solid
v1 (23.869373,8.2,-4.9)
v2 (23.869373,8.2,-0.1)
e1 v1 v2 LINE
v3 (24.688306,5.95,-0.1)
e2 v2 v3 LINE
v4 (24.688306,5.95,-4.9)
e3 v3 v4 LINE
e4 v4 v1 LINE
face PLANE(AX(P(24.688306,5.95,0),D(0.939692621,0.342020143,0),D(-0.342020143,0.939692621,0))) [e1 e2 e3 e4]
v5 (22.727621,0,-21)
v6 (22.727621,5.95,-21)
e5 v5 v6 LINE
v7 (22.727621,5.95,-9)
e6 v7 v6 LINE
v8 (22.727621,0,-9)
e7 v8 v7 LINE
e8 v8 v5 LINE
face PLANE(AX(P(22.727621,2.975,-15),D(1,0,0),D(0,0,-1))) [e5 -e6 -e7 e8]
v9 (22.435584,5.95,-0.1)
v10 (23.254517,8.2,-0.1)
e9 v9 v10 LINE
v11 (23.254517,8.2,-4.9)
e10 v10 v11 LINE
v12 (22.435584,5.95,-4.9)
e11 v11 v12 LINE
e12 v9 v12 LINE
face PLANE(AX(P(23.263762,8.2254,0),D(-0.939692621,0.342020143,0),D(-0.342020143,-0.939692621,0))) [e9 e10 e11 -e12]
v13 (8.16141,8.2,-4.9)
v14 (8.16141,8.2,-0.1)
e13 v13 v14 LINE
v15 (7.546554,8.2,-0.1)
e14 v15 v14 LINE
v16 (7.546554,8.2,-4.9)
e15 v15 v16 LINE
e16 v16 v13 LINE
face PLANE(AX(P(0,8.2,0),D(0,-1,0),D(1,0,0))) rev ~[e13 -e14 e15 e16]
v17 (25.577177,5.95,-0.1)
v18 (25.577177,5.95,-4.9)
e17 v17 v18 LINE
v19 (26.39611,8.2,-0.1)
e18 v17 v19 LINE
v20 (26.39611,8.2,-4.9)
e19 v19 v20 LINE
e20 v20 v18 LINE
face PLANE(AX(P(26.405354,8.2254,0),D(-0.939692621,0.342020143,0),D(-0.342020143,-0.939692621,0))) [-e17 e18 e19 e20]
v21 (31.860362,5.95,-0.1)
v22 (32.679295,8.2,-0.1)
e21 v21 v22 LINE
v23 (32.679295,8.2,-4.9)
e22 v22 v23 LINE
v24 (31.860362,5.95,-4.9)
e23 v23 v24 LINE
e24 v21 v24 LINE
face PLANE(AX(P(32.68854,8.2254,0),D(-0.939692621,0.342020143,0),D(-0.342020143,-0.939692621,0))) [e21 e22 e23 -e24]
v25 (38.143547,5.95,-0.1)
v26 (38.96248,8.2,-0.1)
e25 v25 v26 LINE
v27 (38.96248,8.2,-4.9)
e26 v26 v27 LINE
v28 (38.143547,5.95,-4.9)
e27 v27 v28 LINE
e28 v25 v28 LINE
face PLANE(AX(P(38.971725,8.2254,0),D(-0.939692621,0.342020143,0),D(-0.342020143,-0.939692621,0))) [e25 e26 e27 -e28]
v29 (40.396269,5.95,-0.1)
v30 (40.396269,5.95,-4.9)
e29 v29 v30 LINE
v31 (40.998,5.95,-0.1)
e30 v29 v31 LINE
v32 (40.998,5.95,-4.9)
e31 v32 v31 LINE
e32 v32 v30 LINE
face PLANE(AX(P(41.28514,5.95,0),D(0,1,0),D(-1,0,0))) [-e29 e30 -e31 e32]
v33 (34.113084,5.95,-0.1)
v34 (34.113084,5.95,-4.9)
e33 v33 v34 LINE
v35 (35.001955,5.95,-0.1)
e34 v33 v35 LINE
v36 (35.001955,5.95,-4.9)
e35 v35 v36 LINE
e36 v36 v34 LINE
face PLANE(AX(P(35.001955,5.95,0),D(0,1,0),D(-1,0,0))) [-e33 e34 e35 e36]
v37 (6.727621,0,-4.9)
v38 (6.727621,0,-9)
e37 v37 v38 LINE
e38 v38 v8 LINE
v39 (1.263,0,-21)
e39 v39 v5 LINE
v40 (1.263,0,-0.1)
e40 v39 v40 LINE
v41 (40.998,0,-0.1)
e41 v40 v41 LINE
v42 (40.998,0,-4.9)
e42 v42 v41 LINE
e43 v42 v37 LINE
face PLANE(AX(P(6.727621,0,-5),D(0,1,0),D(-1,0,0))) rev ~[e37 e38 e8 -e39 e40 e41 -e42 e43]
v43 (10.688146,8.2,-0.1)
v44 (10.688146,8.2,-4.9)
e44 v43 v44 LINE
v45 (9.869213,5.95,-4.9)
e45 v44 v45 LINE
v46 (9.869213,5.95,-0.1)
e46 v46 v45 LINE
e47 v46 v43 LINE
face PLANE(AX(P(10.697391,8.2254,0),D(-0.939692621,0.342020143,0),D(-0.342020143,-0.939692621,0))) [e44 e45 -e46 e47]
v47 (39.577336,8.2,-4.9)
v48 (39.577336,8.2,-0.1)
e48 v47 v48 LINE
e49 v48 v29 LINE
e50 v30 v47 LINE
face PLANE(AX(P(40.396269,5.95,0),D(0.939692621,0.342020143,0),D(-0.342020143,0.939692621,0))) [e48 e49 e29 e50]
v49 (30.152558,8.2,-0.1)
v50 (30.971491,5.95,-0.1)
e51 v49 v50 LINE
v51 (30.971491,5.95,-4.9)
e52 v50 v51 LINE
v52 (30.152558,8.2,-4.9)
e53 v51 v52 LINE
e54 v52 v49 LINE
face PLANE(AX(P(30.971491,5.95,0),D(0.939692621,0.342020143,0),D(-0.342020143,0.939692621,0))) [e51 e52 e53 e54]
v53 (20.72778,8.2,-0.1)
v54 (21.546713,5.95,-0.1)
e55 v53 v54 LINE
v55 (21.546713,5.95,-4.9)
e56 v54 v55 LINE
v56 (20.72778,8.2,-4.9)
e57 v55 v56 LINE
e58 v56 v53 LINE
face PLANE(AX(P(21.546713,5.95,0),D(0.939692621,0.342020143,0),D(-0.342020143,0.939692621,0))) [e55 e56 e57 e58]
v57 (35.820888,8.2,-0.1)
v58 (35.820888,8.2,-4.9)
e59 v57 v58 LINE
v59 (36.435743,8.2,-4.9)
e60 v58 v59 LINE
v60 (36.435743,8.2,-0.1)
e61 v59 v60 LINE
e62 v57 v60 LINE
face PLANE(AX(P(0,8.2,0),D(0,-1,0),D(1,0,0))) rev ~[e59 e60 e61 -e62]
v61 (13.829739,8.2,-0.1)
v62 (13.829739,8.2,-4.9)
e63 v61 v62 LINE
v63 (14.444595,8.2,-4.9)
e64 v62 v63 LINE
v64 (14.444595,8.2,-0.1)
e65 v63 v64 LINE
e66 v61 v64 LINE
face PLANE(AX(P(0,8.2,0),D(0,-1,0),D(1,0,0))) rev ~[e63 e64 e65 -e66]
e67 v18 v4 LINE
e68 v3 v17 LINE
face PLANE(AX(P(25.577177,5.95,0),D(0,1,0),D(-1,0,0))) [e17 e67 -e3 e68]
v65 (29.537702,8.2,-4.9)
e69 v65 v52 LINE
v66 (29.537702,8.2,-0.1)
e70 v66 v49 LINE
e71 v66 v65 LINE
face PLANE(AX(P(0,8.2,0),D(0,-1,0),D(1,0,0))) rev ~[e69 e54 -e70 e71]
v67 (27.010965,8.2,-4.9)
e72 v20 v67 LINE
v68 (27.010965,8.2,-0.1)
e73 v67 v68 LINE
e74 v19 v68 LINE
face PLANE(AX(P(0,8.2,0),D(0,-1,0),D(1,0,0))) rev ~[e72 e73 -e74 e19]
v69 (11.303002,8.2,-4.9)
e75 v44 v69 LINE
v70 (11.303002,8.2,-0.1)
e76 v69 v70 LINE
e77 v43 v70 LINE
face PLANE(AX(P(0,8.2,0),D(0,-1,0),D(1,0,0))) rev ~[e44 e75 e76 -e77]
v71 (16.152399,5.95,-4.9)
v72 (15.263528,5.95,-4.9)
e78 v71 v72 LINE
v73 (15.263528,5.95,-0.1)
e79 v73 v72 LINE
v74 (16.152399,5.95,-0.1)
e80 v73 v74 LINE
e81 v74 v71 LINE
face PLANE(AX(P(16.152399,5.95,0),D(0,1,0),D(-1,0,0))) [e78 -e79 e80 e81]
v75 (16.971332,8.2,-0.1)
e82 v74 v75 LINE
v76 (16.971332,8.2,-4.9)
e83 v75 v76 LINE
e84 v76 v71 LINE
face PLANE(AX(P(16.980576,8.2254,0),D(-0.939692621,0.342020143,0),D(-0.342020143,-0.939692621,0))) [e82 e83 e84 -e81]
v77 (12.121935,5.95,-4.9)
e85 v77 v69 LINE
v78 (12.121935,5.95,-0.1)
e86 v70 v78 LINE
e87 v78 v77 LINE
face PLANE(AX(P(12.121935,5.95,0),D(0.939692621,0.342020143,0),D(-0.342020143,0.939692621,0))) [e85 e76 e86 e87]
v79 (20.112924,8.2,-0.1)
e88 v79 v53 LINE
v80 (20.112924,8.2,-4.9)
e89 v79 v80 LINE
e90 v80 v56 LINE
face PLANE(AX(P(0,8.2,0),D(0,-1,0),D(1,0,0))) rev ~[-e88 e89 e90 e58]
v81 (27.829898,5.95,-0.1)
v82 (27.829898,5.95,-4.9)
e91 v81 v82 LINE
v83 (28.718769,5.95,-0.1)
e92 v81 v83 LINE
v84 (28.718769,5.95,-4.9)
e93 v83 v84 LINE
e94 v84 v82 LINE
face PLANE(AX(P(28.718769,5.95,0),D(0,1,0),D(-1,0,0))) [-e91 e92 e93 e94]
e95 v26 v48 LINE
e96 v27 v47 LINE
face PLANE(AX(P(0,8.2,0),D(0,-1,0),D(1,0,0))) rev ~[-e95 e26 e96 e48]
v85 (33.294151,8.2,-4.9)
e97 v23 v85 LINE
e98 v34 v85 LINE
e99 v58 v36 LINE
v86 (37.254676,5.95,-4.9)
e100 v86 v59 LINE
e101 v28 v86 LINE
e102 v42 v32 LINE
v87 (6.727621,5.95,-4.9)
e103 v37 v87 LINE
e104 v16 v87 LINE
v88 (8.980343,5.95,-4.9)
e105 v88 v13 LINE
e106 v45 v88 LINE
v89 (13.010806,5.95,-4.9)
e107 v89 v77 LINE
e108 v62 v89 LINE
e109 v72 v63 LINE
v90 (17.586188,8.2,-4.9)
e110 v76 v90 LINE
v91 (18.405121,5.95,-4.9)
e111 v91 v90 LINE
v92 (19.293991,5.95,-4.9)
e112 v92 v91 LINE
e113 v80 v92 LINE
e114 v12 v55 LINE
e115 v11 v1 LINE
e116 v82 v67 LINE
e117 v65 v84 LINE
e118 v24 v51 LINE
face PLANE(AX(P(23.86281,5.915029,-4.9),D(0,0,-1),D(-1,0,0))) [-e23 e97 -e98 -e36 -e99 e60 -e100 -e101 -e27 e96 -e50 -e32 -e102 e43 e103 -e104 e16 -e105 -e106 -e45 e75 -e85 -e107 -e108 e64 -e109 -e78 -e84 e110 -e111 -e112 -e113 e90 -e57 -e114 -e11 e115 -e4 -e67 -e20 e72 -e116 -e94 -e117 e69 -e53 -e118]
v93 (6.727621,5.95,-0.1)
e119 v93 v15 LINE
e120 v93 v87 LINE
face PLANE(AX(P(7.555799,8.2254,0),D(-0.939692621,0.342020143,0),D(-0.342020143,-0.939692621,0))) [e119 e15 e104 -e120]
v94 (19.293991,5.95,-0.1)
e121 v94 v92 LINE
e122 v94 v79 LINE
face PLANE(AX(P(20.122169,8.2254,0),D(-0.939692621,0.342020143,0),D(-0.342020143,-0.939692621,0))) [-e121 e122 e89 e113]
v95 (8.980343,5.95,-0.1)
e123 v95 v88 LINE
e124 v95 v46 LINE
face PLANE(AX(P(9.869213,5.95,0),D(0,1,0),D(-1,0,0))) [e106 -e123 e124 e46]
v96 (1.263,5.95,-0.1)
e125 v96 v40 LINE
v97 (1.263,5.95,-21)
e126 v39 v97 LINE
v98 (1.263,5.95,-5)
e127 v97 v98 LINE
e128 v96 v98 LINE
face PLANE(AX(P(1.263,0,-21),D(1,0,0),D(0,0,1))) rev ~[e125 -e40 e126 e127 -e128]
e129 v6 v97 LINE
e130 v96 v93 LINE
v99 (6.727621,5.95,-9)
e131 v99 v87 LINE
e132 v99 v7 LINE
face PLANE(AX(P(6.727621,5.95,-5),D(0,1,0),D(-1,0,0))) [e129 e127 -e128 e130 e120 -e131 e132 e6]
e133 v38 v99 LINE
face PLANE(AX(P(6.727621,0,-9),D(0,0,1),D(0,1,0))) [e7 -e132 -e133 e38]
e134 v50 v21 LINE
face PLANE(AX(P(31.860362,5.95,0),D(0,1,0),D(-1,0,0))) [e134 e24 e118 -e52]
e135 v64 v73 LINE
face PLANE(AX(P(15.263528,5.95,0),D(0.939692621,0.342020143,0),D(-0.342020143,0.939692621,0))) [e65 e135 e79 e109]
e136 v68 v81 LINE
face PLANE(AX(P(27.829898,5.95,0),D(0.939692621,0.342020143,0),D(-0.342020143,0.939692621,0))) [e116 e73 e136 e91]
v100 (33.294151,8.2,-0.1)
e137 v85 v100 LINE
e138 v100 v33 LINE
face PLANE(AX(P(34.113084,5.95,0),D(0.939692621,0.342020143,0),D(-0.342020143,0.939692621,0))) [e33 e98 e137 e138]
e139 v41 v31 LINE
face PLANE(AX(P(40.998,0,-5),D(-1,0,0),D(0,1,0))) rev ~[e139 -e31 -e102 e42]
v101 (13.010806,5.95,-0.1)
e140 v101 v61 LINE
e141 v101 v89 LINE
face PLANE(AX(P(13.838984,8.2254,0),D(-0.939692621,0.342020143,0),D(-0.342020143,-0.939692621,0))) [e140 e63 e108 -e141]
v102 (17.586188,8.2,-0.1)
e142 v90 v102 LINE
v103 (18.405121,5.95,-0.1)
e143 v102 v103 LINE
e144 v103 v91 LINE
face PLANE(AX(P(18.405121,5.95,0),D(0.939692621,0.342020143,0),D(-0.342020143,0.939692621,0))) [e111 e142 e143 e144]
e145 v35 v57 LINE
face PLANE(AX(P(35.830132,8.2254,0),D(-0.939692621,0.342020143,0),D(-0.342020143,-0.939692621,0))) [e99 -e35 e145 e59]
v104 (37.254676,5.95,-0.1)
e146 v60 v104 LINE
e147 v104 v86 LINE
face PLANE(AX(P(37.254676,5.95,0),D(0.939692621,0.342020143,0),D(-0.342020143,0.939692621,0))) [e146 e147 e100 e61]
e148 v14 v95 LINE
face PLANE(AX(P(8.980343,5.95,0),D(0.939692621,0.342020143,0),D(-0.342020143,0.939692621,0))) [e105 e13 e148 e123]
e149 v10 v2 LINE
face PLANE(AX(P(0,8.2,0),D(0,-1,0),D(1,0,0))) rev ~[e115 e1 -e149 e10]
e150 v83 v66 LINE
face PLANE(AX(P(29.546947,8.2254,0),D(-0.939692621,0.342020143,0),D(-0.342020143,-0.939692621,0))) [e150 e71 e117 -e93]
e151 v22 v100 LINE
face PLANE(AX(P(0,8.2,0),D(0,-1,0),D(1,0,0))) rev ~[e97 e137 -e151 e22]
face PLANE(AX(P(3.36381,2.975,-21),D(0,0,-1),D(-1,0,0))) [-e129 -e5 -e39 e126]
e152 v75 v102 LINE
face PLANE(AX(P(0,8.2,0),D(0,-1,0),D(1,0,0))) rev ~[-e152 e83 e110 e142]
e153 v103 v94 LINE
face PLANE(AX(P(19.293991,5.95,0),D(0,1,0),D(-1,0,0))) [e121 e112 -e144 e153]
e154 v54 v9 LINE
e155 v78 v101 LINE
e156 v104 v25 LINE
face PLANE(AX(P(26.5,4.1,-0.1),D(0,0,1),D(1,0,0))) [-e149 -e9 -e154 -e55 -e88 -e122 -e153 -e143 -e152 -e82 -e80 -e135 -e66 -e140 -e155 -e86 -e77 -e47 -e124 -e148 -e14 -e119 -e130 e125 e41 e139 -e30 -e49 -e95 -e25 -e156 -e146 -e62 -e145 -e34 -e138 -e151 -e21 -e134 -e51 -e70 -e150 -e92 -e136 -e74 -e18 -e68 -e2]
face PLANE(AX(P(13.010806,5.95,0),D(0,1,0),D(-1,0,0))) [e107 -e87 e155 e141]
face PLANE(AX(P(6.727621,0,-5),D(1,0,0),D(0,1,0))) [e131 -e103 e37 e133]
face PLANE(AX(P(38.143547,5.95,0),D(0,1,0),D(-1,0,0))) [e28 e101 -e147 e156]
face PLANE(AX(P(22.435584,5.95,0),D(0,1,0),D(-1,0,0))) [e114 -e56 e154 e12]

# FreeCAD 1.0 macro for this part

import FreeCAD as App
import Part
import Sketcher
from FreeCAD import Vector
Q = App.Units.Quantity


def add_polygon(sketch, points):
    """Adds a closed chain of lines whose ends are joined by coincident constraints."""
    first, n = sketch.GeometryCount, len(points)
    for a, b in zip(points, points[1:] + points[:1]):
        sketch.addGeometry(Part.LineSegment(App.Vector(*a, 0), App.Vector(*b, 0)), False)
    for i in range(n):
        sketch.addConstraint(Sketcher.Constraint("Coincident", first + i, 2, first + (i + 1) % n, 1))

doc = App.newDocument("Part")
body = doc.addObject("PartDesign::Body", "Body")

# Sketch on XY plane
sketch1 = body.newObject("Sketcher::SketchObject", "Sketch")
sketch1.AttachmentSupport = (doc.getObject("XY_Plane"), [""])
sketch1.MapMode = "FlatFace"
add_polygon(sketch1, [(0, 8.2), (0, 0), (53, 0), (53, 8.2)])  # lines 0-3
sketch1.addConstraint(Sketcher.Constraint("Vertical", 0))
sketch1.addConstraint(Sketcher.Constraint("Horizontal", 1))
sketch1.addConstraint(Sketcher.Constraint("Vertical", 2))
sketch1.addConstraint(Sketcher.Constraint("Horizontal", 3))
sketch1.addConstraint(Sketcher.Constraint("Coincident", 0, 2, -1, 1))
sketch1.addConstraint(Sketcher.Constraint("DistanceX", 1, 1, 1, 2, Q("53 mm")))
sketch1.addConstraint(Sketcher.Constraint("DistanceY", 0, 2, 0, 1, Q("8.2 mm")))
pad1 = body.newObject("PartDesign::Pad", "Pad")
pad1.Profile = sketch1
pad1.Length = 5
pad1.Reversed = True

# Sketch on XY plane
sketch2 = body.newObject("Sketcher::SketchObject", "Sketch001")
sketch2.AttachmentSupport = (doc.getObject("XY_Plane"), [""])
sketch2.MapMode = "FlatFace"
add_polygon(sketch2, [(-0.444435, 5.95), (0.444435, 5.95), (1.272613, 8.2254), (-1.272613, 8.2254)])  # lines 0-3
sketch2.addConstraint(Sketcher.Constraint("Horizontal", 0))
sketch2.addConstraint(Sketcher.Constraint("Horizontal", 2))
sketch2.addConstraint(Sketcher.Constraint("Equal", 1, 3))
sketch2.addConstraint(Sketcher.Constraint("Angle", 1, Q("70 deg")))
sketch2.addConstraint(Sketcher.Constraint("DistanceY", -1, 1, 0, 2, Q("5.95 mm")))
sketch2.addConstraint(Sketcher.Constraint("DistanceX", 0, 1, 0, 2, Q("0.888871 mm")))
sketch2.addConstraint(Sketcher.Constraint("DistanceY", -1, 1, 1, 2, Q("8.2254 mm")))
sketch2.addConstraint(Sketcher.Constraint("DistanceX", -1, 1, 0, 2, Q("0.444435 mm")))
pocket1 = body.newObject("PartDesign::Pocket", "Pocket")
pocket1.Profile = sketch2
pocket1.Type = "ThroughAll"
doc.recompute()

linearpattern = body.newObject("PartDesign::LinearPattern", "LinearPattern")
linearpattern.Originals = [pocket1]
linearpattern.Direction = (doc.getObject("X_Axis"), [""])
linearpattern.Mode = "offset"
linearpattern.Offset = 3.141593
linearpattern.Occurrences = 18
body.Tip = linearpattern

# Sketch on XY plane
sketch3 = body.newObject("Sketcher::SketchObject", "Sketch002")
sketch3.AttachmentSupport = (doc.getObject("XY_Plane"), [""])
sketch3.MapMode = "FlatFace"
sketch3.AttachmentOffset = App.Placement(Vector(0, 0, -5), App.Rotation())
add_polygon(sketch3, [(6.727621, 5.95), (6.727621, 0), (0, 0), (0, 5.95)])  # lines 0-3
sketch3.addConstraint(Sketcher.Constraint("Vertical", 0))
sketch3.addConstraint(Sketcher.Constraint("Horizontal", 1))
sketch3.addConstraint(Sketcher.Constraint("Vertical", 2))
sketch3.addConstraint(Sketcher.Constraint("Horizontal", 3))
sketch3.addConstraint(Sketcher.Constraint("Coincident", 1, 2, -1, 1))
sketch3.addConstraint(Sketcher.Constraint("DistanceY", 0, 2, 0, 1, Q("5.95 mm")))
sketch3.addConstraint(Sketcher.Constraint("DistanceX", 1, 2, 1, 1, Q("6.727621 mm")))
pad2 = body.newObject("PartDesign::Pad", "Pad001")
pad2.Profile = sketch3
pad2.Length = 20
pad2.Reversed = True

# Sketch on YZ plane
sketch4 = body.newObject("Sketcher::SketchObject", "Sketch003")
sketch4.AttachmentSupport = (doc.getObject("YZ_Plane"), [""])
sketch4.MapMode = "FlatFace"
sketch4.AttachmentOffset = App.Placement(Vector(0, 0, 6.727621), App.Rotation())
add_polygon(sketch4, [(5.95, -9), (0, -9), (0, -21), (5.95, -21)])  # lines 0-3
sketch4.addConstraint(Sketcher.Constraint("Horizontal", 0))
sketch4.addConstraint(Sketcher.Constraint("Vertical", 1))
sketch4.addConstraint(Sketcher.Constraint("Horizontal", 2))
sketch4.addConstraint(Sketcher.Constraint("Vertical", 3))
sketch4.addConstraint(Sketcher.Constraint("PointOnObject", 0, 2, -2))
sketch4.addConstraint(Sketcher.Constraint("DistanceY", 1, 2, 1, 1, Q("12 mm")))
sketch4.addConstraint(Sketcher.Constraint("DistanceY", 0, 2, -1, 1, Q("9 mm")))
sketch4.addConstraint(Sketcher.Constraint("DistanceX", 0, 2, 0, 1, Q("5.95 mm")))
pad3 = body.newObject("PartDesign::Pad", "Pad002")
pad3.Profile = sketch4
pad3.Length = 16

# Sketch on XY plane
sketch5 = body.newObject("Sketcher::SketchObject", "Sketch004")
sketch5.AttachmentSupport = (doc.getObject("XY_Plane"), [""])
sketch5.MapMode = "FlatFace"
sketch5.AttachmentOffset = App.Placement(Vector(0, 0, -25), App.Rotation())
add_polygon(sketch5, [(6.727621, 5.95), (6.727621, 0), (0, 0), (0, 5.95)])  # lines 0-3
sketch5.addConstraint(Sketcher.Constraint("Vertical", 0))
sketch5.addConstraint(Sketcher.Constraint("Horizontal", 1))
sketch5.addConstraint(Sketcher.Constraint("Vertical", 2))
sketch5.addConstraint(Sketcher.Constraint("Horizontal", 3))
sketch5.addConstraint(Sketcher.Constraint("Coincident", 1, 2, -1, 1))
sketch5.addConstraint(Sketcher.Constraint("DistanceY", 0, 2, 0, 1, Q("5.95 mm")))
sketch5.addConstraint(Sketcher.Constraint("DistanceX", 1, 2, 1, 1, Q("6.727621 mm")))
pocket2 = body.newObject("PartDesign::Pocket", "Pocket001")
pocket2.Profile = sketch5
pocket2.Length = 4
pocket2.Reversed = True

# Sketch on XY plane
sketch6 = body.newObject("Sketcher::SketchObject", "Sketch005")
sketch6.AttachmentSupport = (doc.getObject("XY_Plane"), [""])
sketch6.MapMode = "FlatFace"
sketch6.AttachmentOffset = App.Placement(Vector(0, 0, -5), App.Rotation())
add_polygon(sketch6, [(53, 8.2), (53, 0), (40.998, 0), (40.998, 8.2)])  # lines 0-3
sketch6.addConstraint(Sketcher.Constraint("Vertical", 0))
sketch6.addConstraint(Sketcher.Constraint("Horizontal", 1))
sketch6.addConstraint(Sketcher.Constraint("Vertical", 2))
sketch6.addConstraint(Sketcher.Constraint("Horizontal", 3))
sketch6.addConstraint(Sketcher.Constraint("PointOnObject", 0, 2, -1))
sketch6.addConstraint(Sketcher.Constraint("DistanceY", 0, 2, 0, 1, Q("8.2 mm")))
sketch6.addConstraint(Sketcher.Constraint("DistanceX", -1, 1, 0, 2, Q("53 mm")))
sketch6.addConstraint(Sketcher.Constraint("DistanceX", 1, 2, 1, 1, Q("12.002 mm")))
pocket3 = body.newObject("PartDesign::Pocket", "Pocket002")
pocket3.Profile = sketch6
pocket3.Length = 9.55
pocket3.Reversed = True

# Sketch on XZ plane
sketch7 = body.newObject("Sketcher::SketchObject", "Sketch006")
sketch7.AttachmentSupport = (doc.getObject("XZ_Plane"), [""])
sketch7.MapMode = "FlatFace"
add_polygon(sketch7, [(0, 0), (0, -21), (1.263, -21), (1.263, 0)])  # lines 0-3
sketch7.addConstraint(Sketcher.Constraint("Vertical", 0))
sketch7.addConstraint(Sketcher.Constraint("Horizontal", 1))
sketch7.addConstraint(Sketcher.Constraint("Vertical", 2))
sketch7.addConstraint(Sketcher.Constraint("Horizontal", 3))
sketch7.addConstraint(Sketcher.Constraint("Coincident", 3, 2, -1, 1))
sketch7.addConstraint(Sketcher.Constraint("DistanceY", 0, 2, 0, 1, Q("21 mm")))
sketch7.addConstraint(Sketcher.Constraint("DistanceX", 1, 1, 1, 2, Q("1.263 mm")))
pocket4 = body.newObject("PartDesign::Pocket", "Pocket003")
pocket4.Profile = sketch7
pocket4.Length = 9.55

# Sketch on XY plane
sketch8 = body.newObject("Sketcher::SketchObject", "Sketch007")
sketch8.AttachmentSupport = (doc.getObject("XY_Plane"), [""])
sketch8.MapMode = "FlatFace"
add_polygon(sketch8, [(1.263, 8.676705), (1.263, 5.95), (5.83875, 5.95), (5.83875, 8.676705)])  # lines 0-3
sketch8.addConstraint(Sketcher.Constraint("Vertical", 0))
sketch8.addConstraint(Sketcher.Constraint("Horizontal", 1))
sketch8.addConstraint(Sketcher.Constraint("Vertical", 2))
sketch8.addConstraint(Sketcher.Constraint("Horizontal", 3))
sketch8.addConstraint(Sketcher.Constraint("DistanceY", -1, 1, 0, 2, Q("5.95 mm")))
sketch8.addConstraint(Sketcher.Constraint("DistanceX", -1, 1, 0, 2, Q("1.263 mm")))
sketch8.addConstraint(Sketcher.Constraint("DistanceX", 1, 1, 1, 2, Q("4.57575 mm")))
sketch8.addConstraint(Sketcher.Constraint("DistanceY", 0, 2, 0, 1, Q("2.726705 mm")))
pocket5 = body.newObject("PartDesign::Pocket", "Pocket004")
pocket5.Profile = sketch8
pocket5.Length = 9.55

# Sketch on XY plane
sketch9 = body.newObject("Sketcher::SketchObject", "Sketch008")
sketch9.AttachmentSupport = (doc.getObject("XY_Plane"), [""])
sketch9.MapMode = "FlatFace"
add_polygon(sketch9, [(0, 8.2), (0, 0), (53, 0), (53, 8.2)])  # lines 0-3
sketch9.addConstraint(Sketcher.Constraint("Vertical", 0))
sketch9.addConstraint(Sketcher.Constraint("Horizontal", 1))
sketch9.addConstraint(Sketcher.Constraint("Vertical", 2))
sketch9.addConstraint(Sketcher.Constraint("Horizontal", 3))
sketch9.addConstraint(Sketcher.Constraint("Coincident", 0, 2, -1, 1))
sketch9.addConstraint(Sketcher.Constraint("DistanceX", 1, 1, 1, 2, Q("53 mm")))
sketch9.addConstraint(Sketcher.Constraint("DistanceY", 0, 2, 0, 1, Q("8.2 mm")))
pocket6 = body.newObject("PartDesign::Pocket", "Pocket005")
pocket6.Profile = sketch9
pocket6.Length = 0.1

# Sketch on XY plane
sketch10 = body.newObject("Sketcher::SketchObject", "Sketch009")
sketch10.AttachmentSupport = (doc.getObject("XY_Plane"), [""])
sketch10.MapMode = "FlatFace"
sketch10.AttachmentOffset = App.Placement(Vector(0, 0, -5), App.Rotation())
add_polygon(sketch10, [(40.998, 11.830057), (40.998, 0), (6.727621, 0), (6.727621, 11.830057)])  # lines 0-3
sketch10.addConstraint(Sketcher.Constraint("Vertical", 0))
sketch10.addConstraint(Sketcher.Constraint("Horizontal", 1))
sketch10.addConstraint(Sketcher.Constraint("Vertical", 2))
sketch10.addConstraint(Sketcher.Constraint("Horizontal", 3))
sketch10.addConstraint(Sketcher.Constraint("PointOnObject", 0, 2, -1))
sketch10.addConstraint(Sketcher.Constraint("DistanceX", -1, 1, 0, 2, Q("40.998 mm")))
sketch10.addConstraint(Sketcher.Constraint("DistanceX", 1, 2, 1, 1, Q("34.270379 mm")))
sketch10.addConstraint(Sketcher.Constraint("DistanceY", 0, 2, 0, 1, Q("11.830057 mm")))
pocket7 = body.newObject("PartDesign::Pocket", "Pocket006")
pocket7.Profile = sketch10
pocket7.Length = 0.1
pocket7.Reversed = True

doc.recompute()
